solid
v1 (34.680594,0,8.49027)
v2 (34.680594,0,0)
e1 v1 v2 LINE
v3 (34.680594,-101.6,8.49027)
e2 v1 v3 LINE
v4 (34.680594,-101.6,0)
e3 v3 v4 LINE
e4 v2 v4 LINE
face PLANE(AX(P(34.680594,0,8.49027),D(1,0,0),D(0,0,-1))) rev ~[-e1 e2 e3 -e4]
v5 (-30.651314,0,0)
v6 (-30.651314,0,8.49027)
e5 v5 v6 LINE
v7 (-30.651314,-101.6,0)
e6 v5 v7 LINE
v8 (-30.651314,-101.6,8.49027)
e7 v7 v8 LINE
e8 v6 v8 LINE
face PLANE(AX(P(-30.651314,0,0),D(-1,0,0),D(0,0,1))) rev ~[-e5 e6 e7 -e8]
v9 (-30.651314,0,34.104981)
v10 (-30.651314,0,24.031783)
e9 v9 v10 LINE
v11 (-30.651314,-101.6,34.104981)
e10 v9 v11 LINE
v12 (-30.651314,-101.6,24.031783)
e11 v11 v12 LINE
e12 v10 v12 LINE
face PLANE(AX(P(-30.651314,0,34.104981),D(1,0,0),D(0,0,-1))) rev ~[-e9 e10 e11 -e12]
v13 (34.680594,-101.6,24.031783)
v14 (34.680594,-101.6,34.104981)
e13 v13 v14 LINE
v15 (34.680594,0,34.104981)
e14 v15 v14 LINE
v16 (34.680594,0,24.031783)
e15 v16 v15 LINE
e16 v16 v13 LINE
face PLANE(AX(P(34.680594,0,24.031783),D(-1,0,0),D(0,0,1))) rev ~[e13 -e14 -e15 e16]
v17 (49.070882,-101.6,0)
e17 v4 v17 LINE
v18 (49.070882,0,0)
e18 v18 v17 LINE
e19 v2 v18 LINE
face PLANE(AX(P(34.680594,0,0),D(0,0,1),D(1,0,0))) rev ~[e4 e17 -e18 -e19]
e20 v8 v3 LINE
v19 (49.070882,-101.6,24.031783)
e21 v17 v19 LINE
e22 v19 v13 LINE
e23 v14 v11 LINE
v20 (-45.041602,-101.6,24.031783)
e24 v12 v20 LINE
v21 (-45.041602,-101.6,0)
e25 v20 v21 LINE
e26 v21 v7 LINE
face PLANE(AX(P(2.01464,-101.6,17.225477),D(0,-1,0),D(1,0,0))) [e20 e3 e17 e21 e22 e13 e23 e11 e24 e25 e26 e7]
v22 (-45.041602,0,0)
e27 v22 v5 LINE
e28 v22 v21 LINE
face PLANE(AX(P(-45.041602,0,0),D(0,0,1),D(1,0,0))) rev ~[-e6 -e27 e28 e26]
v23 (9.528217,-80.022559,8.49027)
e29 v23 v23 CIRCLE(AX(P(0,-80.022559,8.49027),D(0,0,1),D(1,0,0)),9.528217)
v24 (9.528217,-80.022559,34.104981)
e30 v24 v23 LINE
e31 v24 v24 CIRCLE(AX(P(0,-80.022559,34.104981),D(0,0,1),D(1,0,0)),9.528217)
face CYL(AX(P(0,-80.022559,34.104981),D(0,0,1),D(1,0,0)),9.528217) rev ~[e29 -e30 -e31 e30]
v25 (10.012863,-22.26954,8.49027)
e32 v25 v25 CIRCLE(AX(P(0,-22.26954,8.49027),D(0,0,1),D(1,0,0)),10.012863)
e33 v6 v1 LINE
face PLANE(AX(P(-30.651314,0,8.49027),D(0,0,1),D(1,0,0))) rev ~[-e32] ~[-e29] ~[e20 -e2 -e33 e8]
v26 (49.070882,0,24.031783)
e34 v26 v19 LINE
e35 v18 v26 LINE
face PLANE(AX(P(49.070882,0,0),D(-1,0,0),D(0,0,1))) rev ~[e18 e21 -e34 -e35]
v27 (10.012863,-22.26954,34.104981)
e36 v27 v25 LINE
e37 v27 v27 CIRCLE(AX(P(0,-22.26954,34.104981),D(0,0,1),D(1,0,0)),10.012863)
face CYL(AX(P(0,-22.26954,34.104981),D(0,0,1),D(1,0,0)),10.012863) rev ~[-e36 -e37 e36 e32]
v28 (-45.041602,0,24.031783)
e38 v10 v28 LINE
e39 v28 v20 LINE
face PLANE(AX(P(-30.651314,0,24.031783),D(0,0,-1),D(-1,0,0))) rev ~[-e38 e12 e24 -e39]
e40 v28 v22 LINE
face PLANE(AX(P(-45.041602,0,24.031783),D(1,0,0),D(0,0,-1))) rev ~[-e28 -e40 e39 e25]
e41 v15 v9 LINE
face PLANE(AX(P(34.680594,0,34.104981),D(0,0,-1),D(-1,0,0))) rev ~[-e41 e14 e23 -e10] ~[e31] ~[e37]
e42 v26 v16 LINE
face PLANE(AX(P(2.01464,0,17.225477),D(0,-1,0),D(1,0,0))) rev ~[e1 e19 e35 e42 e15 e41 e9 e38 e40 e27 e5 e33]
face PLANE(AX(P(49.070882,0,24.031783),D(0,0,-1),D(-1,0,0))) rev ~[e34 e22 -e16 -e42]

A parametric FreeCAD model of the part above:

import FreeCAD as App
import Part
import Sketcher
Q = App.Units.Quantity

doc = App.newDocument("Part")
body = doc.addObject("PartDesign::Body", "Body")

# Sketch on XZ plane
sketch1 = body.newObject("Sketcher::SketchObject", "Sketch")
sketch1.AttachmentSupport = (doc.getObject("XZ_Plane"), [""])
sketch1.MapMode = "FlatFace"
sketch1.addGeometry([
    Part.LineSegment(App.Vector(35, 34, 0), App.Vector(-31, 34, 0)),  # 0
    Part.LineSegment(App.Vector(-31, 34, 0), App.Vector(-31, 24, 0)),  # 1
    Part.LineSegment(App.Vector(-31, 24, 0), App.Vector(-45, 24, 0)),  # 2
    Part.LineSegment(App.Vector(-45, 24, 0), App.Vector(-45, 0, 0)),  # 3
    Part.LineSegment(App.Vector(-45, 0, 0), App.Vector(-31, 0, 0)),  # 4
    Part.LineSegment(App.Vector(-31, 0, 0), App.Vector(-31, 8, 0)),  # 5
    Part.LineSegment(App.Vector(-31, 8, 0), App.Vector(35, 8, 0)),  # 6
    Part.LineSegment(App.Vector(35, 8, 0), App.Vector(35, 0, 0)),  # 7
    Part.LineSegment(App.Vector(35, 0, 0), App.Vector(49, 0, 0)),  # 8
    Part.LineSegment(App.Vector(49, 0, 0), App.Vector(49, 24, 0)),  # 9
    Part.LineSegment(App.Vector(49, 24, 0), App.Vector(35, 24, 0)),  # 10
    Part.LineSegment(App.Vector(35, 24, 0), App.Vector(35, 34, 0)),  # 11
], False)
sketch1.addConstraint([
    Sketcher.Constraint("Coincident", 0, 2, 1, 1),
    Sketcher.Constraint("Coincident", 1, 2, 2, 1),
    Sketcher.Constraint("Coincident", 2, 2, 3, 1),
    Sketcher.Constraint("Coincident", 3, 2, 4, 1),
    Sketcher.Constraint("Coincident", 4, 2, 5, 1),
    Sketcher.Constraint("Coincident", 5, 2, 6, 1),
    Sketcher.Constraint("Coincident", 6, 2, 7, 1),
    Sketcher.Constraint("Coincident", 7, 2, 8, 1),
    Sketcher.Constraint("Coincident", 8, 2, 9, 1),
    Sketcher.Constraint("Coincident", 9, 2, 10, 1),
    Sketcher.Constraint("Coincident", 10, 2, 11, 1),
    Sketcher.Constraint("Coincident", 11, 2, 0, 1),
    Sketcher.Constraint("Horizontal", 0),
    Sketcher.Constraint("Vertical", 1),
    Sketcher.Constraint("Horizontal", 2),
    Sketcher.Constraint("Vertical", 3),
    Sketcher.Constraint("Horizontal", 4),
    Sketcher.Constraint("Vertical", 5),
    Sketcher.Constraint("Horizontal", 6),
    Sketcher.Constraint("Vertical", 7),
    Sketcher.Constraint("Horizontal", 8),
    Sketcher.Constraint("Vertical", 9),
    Sketcher.Constraint("Horizontal", 10),
    Sketcher.Constraint("Vertical", 11),
    Sketcher.Constraint("PointOnObject", 3, 2, -1),
    Sketcher.Constraint("PointOnObject", 7, 2, -1),
    Sketcher.Constraint("Horizontal", 2, 2, 9, 2),
    Sketcher.Constraint("Vertical", 1, 2, 4, 2),
    Sketcher.Constraint("Vertical", 7, 2, 10, 2),
    Sketcher.Constraint("Equal", 4, 8),
    Sketcher.Constraint("DistanceY", 1, 2, 1, 1, Q("10.073198 mm")),
    Sketcher.Constraint("DistanceX", 0, 2, 0, 1, Q("65.331908 mm")),
    Sketcher.Constraint("DistanceY", 5, 1, 5, 2, Q("8.49027 mm")),
    Sketcher.Constraint("DistanceX", 2, 2, -1, 1, Q("45.041602 mm")),
    Sketcher.Constraint("DistanceX", 2, 2, 2, 1, Q("14.390288 mm")),
    Sketcher.Constraint("DistanceY", 3, 2, 3, 1, Q("24.031783 mm")),
])
pad1 = body.newObject("PartDesign::Pad", "Pad")
pad1.Profile = sketch1
pad1.Length = Q("4 in")

# Sketch on XY plane
sketch2 = body.newObject("Sketcher::SketchObject", "Sketch001")
sketch2.AttachmentSupport = (doc.getObject("XY_Plane"), [""])
sketch2.MapMode = "FlatFace"
sketch2.AttachmentOffset = App.Placement(App.Vector(0, 0, 34.104981), App.Rotation())
sketch2.addGeometry([
    Part.Circle(App.Vector(0, -22, 0), App.Vector(0, 0, 1), 10),
    Part.Circle(App.Vector(0, -80, 0), App.Vector(0, 0, 1), 10),
], False)
sketch2.addConstraint([
    Sketcher.Constraint("PointOnObject", 0, 3, -2),
    Sketcher.Constraint("PointOnObject", 1, 3, -2),
    Sketcher.Constraint("Diameter", 0, Q("20.025726 mm")),
    Sketcher.Constraint("Diameter", 1, Q("19.056434 mm")),
    Sketcher.Constraint("DistanceY", 0, 3, -1, 1, Q("22.26954 mm")),
    Sketcher.Constraint("DistanceY", 1, 3, -1, 1, Q("80.022559 mm")),
])
pocket1 = body.newObject("PartDesign::Pocket", "Pocket")
pocket1.Profile = sketch2
pocket1.Length = Q("3 in")

doc.recompute()
